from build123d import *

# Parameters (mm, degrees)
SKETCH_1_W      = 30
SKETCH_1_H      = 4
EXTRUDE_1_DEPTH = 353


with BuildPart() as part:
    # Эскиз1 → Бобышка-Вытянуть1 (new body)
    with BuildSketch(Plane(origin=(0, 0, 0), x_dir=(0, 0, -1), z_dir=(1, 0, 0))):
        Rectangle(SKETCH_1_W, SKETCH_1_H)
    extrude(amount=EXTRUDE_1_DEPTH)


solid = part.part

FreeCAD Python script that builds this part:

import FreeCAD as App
import Part
import Sketcher
from FreeCAD import Vector
Q = App.Units.Quantity


def add_polygon(sketch, points):
    """Adds a closed chain of lines whose ends are joined by coincident constraints."""
    first, n = sketch.GeometryCount, len(points)
    for a, b in zip(points, points[1:] + points[:1]):
        sketch.addGeometry(Part.LineSegment(App.Vector(*a, 0), App.Vector(*b, 0)), False)
    for i in range(n):
        sketch.addConstraint(Sketcher.Constraint("Coincident", first + i, 2, first + (i + 1) % n, 1))

doc = App.newDocument("Part")
body = doc.addObject("PartDesign::Body", "Body")

sketch1 = body.newObject("Sketcher::SketchObject", "Sketch")
sketch1.AttachmentSupport = (doc.getObject("YZ_Plane"), [""])
sketch1.MapMode = "FlatFace"
add_polygon(sketch1, [(2, 15), (-2, 15), (-2, -15), (2, -15)])
sketch1.addConstraint(Sketcher.Constraint("Horizontal", 0))
sketch1.addConstraint(Sketcher.Constraint("Vertical", 1))
sketch1.addConstraint(Sketcher.Constraint("Horizontal", 2))
sketch1.addConstraint(Sketcher.Constraint("Vertical", 3))
sketch1.addConstraint(Sketcher.Constraint("Symmetric", 0, 2, 2, 2, -1, 1))
sketch1.addConstraint(Sketcher.Constraint("DistanceX", 0, 2, 0, 1, Q("4 mm")))
sketch1.addConstraint(Sketcher.Constraint("DistanceY", 1, 2, 1, 1, Q("30 mm")))
pad1 = body.newObject("PartDesign::Pad", "Pad")
pad1.Profile = sketch1
pad1.Length = 353

doc.recompute()
